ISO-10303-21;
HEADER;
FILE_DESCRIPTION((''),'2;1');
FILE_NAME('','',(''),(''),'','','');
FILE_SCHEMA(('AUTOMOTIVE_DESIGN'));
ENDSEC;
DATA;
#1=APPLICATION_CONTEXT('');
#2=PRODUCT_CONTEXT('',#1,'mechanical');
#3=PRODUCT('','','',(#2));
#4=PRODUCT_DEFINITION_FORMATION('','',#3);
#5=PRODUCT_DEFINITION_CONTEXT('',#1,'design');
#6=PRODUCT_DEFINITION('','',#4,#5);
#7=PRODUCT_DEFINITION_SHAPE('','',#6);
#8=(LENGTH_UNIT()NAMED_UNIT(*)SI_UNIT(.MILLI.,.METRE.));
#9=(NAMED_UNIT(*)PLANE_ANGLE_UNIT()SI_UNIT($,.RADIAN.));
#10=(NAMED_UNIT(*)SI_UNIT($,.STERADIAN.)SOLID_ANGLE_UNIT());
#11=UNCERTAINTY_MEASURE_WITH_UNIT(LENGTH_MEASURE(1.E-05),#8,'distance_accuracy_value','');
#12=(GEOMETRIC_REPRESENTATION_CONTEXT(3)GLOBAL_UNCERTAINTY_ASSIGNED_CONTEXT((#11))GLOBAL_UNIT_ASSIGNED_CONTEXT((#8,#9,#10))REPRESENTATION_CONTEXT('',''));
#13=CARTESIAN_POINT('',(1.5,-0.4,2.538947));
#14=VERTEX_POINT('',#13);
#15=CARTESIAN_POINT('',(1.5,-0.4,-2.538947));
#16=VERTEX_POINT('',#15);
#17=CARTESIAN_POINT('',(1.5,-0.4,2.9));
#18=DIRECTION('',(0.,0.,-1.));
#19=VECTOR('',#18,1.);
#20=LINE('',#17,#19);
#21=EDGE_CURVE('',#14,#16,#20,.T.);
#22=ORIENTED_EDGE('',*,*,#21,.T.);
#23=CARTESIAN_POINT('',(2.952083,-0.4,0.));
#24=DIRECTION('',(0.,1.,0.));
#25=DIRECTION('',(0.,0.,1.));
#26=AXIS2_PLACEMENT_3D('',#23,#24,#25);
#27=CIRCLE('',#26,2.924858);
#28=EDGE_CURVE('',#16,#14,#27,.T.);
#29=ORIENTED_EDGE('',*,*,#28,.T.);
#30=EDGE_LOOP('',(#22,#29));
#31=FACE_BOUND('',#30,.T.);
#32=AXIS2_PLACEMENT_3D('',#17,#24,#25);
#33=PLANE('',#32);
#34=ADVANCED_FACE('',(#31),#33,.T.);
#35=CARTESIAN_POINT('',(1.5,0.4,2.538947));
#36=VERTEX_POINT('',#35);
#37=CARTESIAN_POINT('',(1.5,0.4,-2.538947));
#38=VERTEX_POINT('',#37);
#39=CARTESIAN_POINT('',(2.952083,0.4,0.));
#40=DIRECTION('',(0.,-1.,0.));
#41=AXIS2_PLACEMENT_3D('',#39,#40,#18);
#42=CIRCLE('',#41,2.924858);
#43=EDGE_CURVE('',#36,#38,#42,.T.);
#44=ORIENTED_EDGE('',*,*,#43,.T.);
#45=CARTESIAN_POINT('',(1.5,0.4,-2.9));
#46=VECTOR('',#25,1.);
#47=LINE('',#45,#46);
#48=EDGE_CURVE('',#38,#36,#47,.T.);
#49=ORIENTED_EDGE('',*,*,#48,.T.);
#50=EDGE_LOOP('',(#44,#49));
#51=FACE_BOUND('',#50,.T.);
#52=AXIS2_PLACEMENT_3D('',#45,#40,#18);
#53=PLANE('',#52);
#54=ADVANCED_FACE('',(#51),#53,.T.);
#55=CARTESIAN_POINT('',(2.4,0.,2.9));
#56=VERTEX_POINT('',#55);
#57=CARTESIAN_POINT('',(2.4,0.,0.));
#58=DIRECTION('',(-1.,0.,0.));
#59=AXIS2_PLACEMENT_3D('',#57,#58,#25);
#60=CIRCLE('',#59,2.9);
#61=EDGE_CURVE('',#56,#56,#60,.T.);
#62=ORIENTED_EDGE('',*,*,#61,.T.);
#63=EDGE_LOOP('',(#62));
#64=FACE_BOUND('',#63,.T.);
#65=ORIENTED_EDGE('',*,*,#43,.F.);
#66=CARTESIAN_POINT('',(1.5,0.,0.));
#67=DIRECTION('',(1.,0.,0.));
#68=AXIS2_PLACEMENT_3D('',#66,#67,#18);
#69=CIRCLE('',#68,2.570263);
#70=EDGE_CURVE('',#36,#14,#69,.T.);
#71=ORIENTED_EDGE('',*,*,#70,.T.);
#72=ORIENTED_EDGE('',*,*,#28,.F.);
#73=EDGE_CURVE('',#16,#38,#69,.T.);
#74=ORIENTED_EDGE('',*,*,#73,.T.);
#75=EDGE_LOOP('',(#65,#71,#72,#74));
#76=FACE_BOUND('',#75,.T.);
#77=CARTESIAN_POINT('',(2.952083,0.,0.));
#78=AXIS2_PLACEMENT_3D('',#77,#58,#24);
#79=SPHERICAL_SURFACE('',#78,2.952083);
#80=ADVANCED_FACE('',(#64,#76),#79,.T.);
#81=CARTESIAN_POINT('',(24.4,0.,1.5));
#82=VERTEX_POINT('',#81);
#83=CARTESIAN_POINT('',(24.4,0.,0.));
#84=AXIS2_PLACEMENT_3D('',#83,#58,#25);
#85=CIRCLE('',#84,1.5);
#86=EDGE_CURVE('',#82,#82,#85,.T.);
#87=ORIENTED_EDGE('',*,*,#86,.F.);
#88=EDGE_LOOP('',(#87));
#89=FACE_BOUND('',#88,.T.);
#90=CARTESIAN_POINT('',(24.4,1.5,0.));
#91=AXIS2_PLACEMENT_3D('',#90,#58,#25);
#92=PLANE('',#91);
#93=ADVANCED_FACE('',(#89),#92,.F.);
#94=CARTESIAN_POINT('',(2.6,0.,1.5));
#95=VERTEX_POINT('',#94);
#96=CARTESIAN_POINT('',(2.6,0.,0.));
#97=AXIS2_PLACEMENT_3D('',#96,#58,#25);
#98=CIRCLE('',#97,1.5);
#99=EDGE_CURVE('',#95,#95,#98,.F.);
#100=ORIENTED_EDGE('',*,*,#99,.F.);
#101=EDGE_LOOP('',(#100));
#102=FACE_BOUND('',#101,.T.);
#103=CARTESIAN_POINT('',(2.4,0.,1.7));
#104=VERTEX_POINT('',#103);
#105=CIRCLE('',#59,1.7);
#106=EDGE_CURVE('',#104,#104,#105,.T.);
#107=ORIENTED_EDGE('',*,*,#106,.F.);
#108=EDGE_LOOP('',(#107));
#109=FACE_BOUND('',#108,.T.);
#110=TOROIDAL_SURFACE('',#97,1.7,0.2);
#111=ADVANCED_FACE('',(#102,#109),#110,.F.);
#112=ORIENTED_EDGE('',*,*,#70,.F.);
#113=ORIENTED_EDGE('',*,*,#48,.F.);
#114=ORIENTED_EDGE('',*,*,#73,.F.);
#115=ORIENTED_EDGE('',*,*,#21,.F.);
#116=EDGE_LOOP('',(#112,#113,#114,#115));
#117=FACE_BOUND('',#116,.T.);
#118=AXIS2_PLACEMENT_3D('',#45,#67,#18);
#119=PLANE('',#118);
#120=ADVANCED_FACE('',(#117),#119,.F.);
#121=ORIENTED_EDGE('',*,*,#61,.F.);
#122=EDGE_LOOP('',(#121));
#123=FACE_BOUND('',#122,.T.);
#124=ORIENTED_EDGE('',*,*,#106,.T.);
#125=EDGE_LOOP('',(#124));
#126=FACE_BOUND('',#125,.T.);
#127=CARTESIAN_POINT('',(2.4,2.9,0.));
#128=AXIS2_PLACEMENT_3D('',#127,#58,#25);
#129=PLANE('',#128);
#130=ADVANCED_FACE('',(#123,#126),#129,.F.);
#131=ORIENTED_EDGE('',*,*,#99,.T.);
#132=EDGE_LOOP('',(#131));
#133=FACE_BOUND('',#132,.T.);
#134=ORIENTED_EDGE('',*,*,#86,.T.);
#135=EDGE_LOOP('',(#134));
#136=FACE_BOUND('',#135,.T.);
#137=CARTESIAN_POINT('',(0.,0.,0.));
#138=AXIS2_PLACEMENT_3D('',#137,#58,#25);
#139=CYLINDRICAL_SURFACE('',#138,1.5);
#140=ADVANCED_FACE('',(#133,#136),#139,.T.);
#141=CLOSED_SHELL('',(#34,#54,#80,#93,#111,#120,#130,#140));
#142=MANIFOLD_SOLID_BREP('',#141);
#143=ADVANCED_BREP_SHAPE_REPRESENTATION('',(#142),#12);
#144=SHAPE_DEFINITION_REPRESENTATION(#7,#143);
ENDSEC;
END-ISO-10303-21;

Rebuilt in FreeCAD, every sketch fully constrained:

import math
import FreeCAD as App
import Part
import Sketcher
from FreeCAD import Vector
Q = App.Units.Quantity


def edges_at(feature, points):
    """Names of the edges that pass closest to the given points."""
    edges = feature.Shape.Edges
    near = lambda p: min(range(len(edges)), key=lambda i: edges[i].distToShape(Part.Vertex(*p))[0])
    return sorted({f"Edge{near(p) + 1}" for p in points})

doc = App.newDocument("Part")
params = doc.addObject("Spreadsheet::Sheet", "Params")
for row, (alias, value) in enumerate([
    ("sketch1_width", "22 mm"),
    ("sketch1_width2", "24.4 mm"),
    ("sketch1_height", "1.4 mm"),
    ("sketch1_height2", "1.5 mm"),
    ("revolution_angle", "360 deg"),
    ("sketch2_width", "0.8 mm"),
    ("sketch2_height", "5.8 mm"),
    ("pocket1_length", "1.5 mm"),
    ("fillet_radius", "0.2 mm"),
], start=1):
    params.set(f"A{row}", alias)
    params.set(f"B{row}", "=" + value)
    params.setAlias(f"B{row}", alias)

body = doc.addObject("PartDesign::Body", "Body")

# Sketch on XY plane
sketch1 = doc.addObject("Sketcher::SketchObject", "Sketch")
body.addObject(sketch1)
sketch1.AttachmentSupport = (doc.XY_Plane, [""])
sketch1.MapMode = "FlatFace"
sketch1.addGeometry(Part.LineSegment(Vector(2.4, 1.5, 0), Vector(2.4, 2.9, 0)), False)
sketch1.addGeometry(Part.ArcOfCircle(Part.Circle(Vector(2.952083, 0, 0), Vector(0, 0, 1), 2.952083), math.radians(100.778624), math.radians(180)), False)
sketch1.addGeometry(Part.LineSegment(Vector(0, 0, 0), Vector(24.4, 0, 0)), False)
sketch1.addGeometry(Part.LineSegment(Vector(24.4, 0, 0), Vector(24.4, 1.5, 0)), False)
sketch1.addGeometry(Part.LineSegment(Vector(24.4, 1.5, 0), Vector(2.4, 1.5, 0)), False)
sketch1.addConstraint(Sketcher.Constraint("Coincident", 0, 2, 1, 1))
sketch1.addConstraint(Sketcher.Constraint("Coincident", 1, 2, 2, 1))
sketch1.addConstraint(Sketcher.Constraint("Coincident", 2, 2, 3, 1))
sketch1.addConstraint(Sketcher.Constraint("Coincident", 3, 2, 4, 1))
sketch1.addConstraint(Sketcher.Constraint("Coincident", 4, 2, 0, 1))
sketch1.addConstraint(Sketcher.Constraint("Vertical", 0))
sketch1.addConstraint(Sketcher.Constraint("Horizontal", 2))
sketch1.addConstraint(Sketcher.Constraint("Vertical", 3))
sketch1.addConstraint(Sketcher.Constraint("Horizontal", 4))
sketch1.addConstraint(Sketcher.Constraint("Coincident", 1, 2, -1, 1))
sketch1.addConstraint(Sketcher.Constraint("PointOnObject", 1, 3, -1))
sketch1.addConstraint(Sketcher.Constraint("DistanceX", 4, 2, 4, 1, Q("22 mm")))
sketch1.addConstraint(Sketcher.Constraint("DistanceX", 2, 1, 2, 2, Q("24.4 mm")))
sketch1.addConstraint(Sketcher.Constraint("DistanceY", 0, 1, 0, 2, Q("1.4 mm")))
sketch1.addConstraint(Sketcher.Constraint("DistanceY", 3, 1, 3, 2, Q("1.5 mm")))
sketch1.setExpression("Constraints[11]", "Params.sketch1_width")
sketch1.setExpression("Constraints[12]", "Params.sketch1_width2")
sketch1.setExpression("Constraints[13]", "Params.sketch1_height")
sketch1.setExpression("Constraints[14]", "Params.sketch1_height2")
revolution = doc.addObject("PartDesign::Revolution", "Revolution")
body.addObject(revolution)
revolution.Profile = sketch1
revolution.ReferenceAxis = (sketch1, ["H_Axis"])
revolution.setExpression("Angle", "Params.revolution_angle")

# Sketch on YZ plane
sketch2 = doc.addObject("Sketcher::SketchObject", "Sketch001")
body.addObject(sketch2)
sketch2.AttachmentSupport = (doc.YZ_Plane, [""])
sketch2.MapMode = "FlatFace"
sketch2.addGeometry(Part.LineSegment(Vector(0.4, 2.9, 0), Vector(-0.4, 2.9, 0)), False)
sketch2.addGeometry(Part.LineSegment(Vector(-0.4, 2.9, 0), Vector(-0.4, -2.9, 0)), False)
sketch2.addGeometry(Part.LineSegment(Vector(-0.4, -2.9, 0), Vector(0.4, -2.9, 0)), False)
sketch2.addGeometry(Part.LineSegment(Vector(0.4, -2.9, 0), Vector(0.4, 2.9, 0)), False)
sketch2.addConstraint(Sketcher.Constraint("Coincident", 0, 2, 1, 1))
sketch2.addConstraint(Sketcher.Constraint("Coincident", 1, 2, 2, 1))
sketch2.addConstraint(Sketcher.Constraint("Coincident", 2, 2, 3, 1))
sketch2.addConstraint(Sketcher.Constraint("Coincident", 3, 2, 0, 1))
sketch2.addConstraint(Sketcher.Constraint("Horizontal", 0))
sketch2.addConstraint(Sketcher.Constraint("Vertical", 1))
sketch2.addConstraint(Sketcher.Constraint("Horizontal", 2))
sketch2.addConstraint(Sketcher.Constraint("Vertical", 3))
sketch2.addConstraint(Sketcher.Constraint("Symmetric", 0, 2, 2, 2, -1, 1))
sketch2.addConstraint(Sketcher.Constraint("DistanceX", 0, 2, 0, 1, Q("0.8 mm")))
sketch2.addConstraint(Sketcher.Constraint("DistanceY", 1, 2, 1, 1, Q("5.8 mm")))
sketch2.setExpression("Constraints[9]", "Params.sketch2_width")
sketch2.setExpression("Constraints[10]", "Params.sketch2_height")
pocket1 = doc.addObject("PartDesign::Pocket", "Pocket")
body.addObject(pocket1)
pocket1.Profile = sketch2
pocket1.setExpression("Length", "Params.pocket1_length")
pocket1.Reversed = True
doc.recompute()

fillet = doc.addObject("PartDesign::Fillet", "Fillet")
body.addObject(fillet)
fillet.Base = (pocket1, edges_at(pocket1, [(2.4, -1.5, 0)]))
fillet.setExpression("Radius", "Params.fillet_radius")

doc.recompute()
